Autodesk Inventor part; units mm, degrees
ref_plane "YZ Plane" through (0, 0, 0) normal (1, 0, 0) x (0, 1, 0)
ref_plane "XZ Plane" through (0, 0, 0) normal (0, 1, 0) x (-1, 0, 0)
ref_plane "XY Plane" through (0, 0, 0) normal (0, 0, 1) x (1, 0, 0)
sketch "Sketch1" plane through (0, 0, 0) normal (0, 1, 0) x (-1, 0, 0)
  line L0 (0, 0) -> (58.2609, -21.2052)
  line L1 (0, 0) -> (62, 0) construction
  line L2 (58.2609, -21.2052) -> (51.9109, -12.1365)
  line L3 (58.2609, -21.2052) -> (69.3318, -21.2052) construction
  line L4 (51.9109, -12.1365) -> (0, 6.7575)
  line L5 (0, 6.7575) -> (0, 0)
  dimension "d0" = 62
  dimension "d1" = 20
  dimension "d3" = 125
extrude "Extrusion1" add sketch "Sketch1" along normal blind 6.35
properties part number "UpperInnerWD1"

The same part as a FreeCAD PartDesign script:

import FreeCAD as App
import Part
import Sketcher

V = App.Vector
Q = App.Units.Quantity


def add_polygon(sketch, points):
    """Adds a closed chain of lines whose ends are joined by coincident constraints."""
    first, n = sketch.GeometryCount, len(points)
    for a, b in zip(points, points[1:] + points[:1]):
        sketch.addGeometry(Part.LineSegment(App.Vector(*a, 0), App.Vector(*b, 0)), False)
    for i in range(n):
        sketch.addConstraint(Sketcher.Constraint("Coincident", first + i, 2, first + (i + 1) % n, 1))

doc = App.newDocument("Part")
params = doc.addObject("Spreadsheet::Sheet", "Params")
for row, (alias, value) in enumerate([
    ("sketch1_length", "62 mm"),
    ("pad1_length", "6.35 mm"),
], start=1):
    params.set(f"A{row}", alias)
    params.set(f"B{row}", "=" + value)
    params.setAlias(f"B{row}", alias)

body = doc.addObject("PartDesign::Body", "Body")

sketch1 = body.newObject("Sketcher::SketchObject", "Sketch")
sketch1.AttachmentSupport = (doc.getObject("XZ_Plane"), [""])
sketch1.MapMode = "FlatFace"
add_polygon(sketch1, [(0, 6.7575), (0, 0), (-58.2609, -21.2052), (-51.9109, -12.1365)])
sketch1.addConstraint([
    Sketcher.Constraint("Vertical", 0),
    Sketcher.Constraint("Coincident", 0, 2, -1, 1),
    Sketcher.Constraint("Parallel", 1, 3),
    Sketcher.Constraint("Angle", 3, Q("20 deg")),
    Sketcher.Constraint("Distance", 1, Q("62 mm")),
    Sketcher.Constraint("Angle", 2, Q("55 deg")),
    Sketcher.Constraint("DistanceX", 1, 2, 2, 2, Q("6.35 mm")),
])
sketch1.setExpression("Constraints[8]", "Params.sketch1_length")
pad1 = body.newObject("PartDesign::Pad", "Pad")
pad1.Profile = sketch1
pad1.setExpression("Length", "Params.pad1_length")
pad1.Reversed = True

doc.recompute()
